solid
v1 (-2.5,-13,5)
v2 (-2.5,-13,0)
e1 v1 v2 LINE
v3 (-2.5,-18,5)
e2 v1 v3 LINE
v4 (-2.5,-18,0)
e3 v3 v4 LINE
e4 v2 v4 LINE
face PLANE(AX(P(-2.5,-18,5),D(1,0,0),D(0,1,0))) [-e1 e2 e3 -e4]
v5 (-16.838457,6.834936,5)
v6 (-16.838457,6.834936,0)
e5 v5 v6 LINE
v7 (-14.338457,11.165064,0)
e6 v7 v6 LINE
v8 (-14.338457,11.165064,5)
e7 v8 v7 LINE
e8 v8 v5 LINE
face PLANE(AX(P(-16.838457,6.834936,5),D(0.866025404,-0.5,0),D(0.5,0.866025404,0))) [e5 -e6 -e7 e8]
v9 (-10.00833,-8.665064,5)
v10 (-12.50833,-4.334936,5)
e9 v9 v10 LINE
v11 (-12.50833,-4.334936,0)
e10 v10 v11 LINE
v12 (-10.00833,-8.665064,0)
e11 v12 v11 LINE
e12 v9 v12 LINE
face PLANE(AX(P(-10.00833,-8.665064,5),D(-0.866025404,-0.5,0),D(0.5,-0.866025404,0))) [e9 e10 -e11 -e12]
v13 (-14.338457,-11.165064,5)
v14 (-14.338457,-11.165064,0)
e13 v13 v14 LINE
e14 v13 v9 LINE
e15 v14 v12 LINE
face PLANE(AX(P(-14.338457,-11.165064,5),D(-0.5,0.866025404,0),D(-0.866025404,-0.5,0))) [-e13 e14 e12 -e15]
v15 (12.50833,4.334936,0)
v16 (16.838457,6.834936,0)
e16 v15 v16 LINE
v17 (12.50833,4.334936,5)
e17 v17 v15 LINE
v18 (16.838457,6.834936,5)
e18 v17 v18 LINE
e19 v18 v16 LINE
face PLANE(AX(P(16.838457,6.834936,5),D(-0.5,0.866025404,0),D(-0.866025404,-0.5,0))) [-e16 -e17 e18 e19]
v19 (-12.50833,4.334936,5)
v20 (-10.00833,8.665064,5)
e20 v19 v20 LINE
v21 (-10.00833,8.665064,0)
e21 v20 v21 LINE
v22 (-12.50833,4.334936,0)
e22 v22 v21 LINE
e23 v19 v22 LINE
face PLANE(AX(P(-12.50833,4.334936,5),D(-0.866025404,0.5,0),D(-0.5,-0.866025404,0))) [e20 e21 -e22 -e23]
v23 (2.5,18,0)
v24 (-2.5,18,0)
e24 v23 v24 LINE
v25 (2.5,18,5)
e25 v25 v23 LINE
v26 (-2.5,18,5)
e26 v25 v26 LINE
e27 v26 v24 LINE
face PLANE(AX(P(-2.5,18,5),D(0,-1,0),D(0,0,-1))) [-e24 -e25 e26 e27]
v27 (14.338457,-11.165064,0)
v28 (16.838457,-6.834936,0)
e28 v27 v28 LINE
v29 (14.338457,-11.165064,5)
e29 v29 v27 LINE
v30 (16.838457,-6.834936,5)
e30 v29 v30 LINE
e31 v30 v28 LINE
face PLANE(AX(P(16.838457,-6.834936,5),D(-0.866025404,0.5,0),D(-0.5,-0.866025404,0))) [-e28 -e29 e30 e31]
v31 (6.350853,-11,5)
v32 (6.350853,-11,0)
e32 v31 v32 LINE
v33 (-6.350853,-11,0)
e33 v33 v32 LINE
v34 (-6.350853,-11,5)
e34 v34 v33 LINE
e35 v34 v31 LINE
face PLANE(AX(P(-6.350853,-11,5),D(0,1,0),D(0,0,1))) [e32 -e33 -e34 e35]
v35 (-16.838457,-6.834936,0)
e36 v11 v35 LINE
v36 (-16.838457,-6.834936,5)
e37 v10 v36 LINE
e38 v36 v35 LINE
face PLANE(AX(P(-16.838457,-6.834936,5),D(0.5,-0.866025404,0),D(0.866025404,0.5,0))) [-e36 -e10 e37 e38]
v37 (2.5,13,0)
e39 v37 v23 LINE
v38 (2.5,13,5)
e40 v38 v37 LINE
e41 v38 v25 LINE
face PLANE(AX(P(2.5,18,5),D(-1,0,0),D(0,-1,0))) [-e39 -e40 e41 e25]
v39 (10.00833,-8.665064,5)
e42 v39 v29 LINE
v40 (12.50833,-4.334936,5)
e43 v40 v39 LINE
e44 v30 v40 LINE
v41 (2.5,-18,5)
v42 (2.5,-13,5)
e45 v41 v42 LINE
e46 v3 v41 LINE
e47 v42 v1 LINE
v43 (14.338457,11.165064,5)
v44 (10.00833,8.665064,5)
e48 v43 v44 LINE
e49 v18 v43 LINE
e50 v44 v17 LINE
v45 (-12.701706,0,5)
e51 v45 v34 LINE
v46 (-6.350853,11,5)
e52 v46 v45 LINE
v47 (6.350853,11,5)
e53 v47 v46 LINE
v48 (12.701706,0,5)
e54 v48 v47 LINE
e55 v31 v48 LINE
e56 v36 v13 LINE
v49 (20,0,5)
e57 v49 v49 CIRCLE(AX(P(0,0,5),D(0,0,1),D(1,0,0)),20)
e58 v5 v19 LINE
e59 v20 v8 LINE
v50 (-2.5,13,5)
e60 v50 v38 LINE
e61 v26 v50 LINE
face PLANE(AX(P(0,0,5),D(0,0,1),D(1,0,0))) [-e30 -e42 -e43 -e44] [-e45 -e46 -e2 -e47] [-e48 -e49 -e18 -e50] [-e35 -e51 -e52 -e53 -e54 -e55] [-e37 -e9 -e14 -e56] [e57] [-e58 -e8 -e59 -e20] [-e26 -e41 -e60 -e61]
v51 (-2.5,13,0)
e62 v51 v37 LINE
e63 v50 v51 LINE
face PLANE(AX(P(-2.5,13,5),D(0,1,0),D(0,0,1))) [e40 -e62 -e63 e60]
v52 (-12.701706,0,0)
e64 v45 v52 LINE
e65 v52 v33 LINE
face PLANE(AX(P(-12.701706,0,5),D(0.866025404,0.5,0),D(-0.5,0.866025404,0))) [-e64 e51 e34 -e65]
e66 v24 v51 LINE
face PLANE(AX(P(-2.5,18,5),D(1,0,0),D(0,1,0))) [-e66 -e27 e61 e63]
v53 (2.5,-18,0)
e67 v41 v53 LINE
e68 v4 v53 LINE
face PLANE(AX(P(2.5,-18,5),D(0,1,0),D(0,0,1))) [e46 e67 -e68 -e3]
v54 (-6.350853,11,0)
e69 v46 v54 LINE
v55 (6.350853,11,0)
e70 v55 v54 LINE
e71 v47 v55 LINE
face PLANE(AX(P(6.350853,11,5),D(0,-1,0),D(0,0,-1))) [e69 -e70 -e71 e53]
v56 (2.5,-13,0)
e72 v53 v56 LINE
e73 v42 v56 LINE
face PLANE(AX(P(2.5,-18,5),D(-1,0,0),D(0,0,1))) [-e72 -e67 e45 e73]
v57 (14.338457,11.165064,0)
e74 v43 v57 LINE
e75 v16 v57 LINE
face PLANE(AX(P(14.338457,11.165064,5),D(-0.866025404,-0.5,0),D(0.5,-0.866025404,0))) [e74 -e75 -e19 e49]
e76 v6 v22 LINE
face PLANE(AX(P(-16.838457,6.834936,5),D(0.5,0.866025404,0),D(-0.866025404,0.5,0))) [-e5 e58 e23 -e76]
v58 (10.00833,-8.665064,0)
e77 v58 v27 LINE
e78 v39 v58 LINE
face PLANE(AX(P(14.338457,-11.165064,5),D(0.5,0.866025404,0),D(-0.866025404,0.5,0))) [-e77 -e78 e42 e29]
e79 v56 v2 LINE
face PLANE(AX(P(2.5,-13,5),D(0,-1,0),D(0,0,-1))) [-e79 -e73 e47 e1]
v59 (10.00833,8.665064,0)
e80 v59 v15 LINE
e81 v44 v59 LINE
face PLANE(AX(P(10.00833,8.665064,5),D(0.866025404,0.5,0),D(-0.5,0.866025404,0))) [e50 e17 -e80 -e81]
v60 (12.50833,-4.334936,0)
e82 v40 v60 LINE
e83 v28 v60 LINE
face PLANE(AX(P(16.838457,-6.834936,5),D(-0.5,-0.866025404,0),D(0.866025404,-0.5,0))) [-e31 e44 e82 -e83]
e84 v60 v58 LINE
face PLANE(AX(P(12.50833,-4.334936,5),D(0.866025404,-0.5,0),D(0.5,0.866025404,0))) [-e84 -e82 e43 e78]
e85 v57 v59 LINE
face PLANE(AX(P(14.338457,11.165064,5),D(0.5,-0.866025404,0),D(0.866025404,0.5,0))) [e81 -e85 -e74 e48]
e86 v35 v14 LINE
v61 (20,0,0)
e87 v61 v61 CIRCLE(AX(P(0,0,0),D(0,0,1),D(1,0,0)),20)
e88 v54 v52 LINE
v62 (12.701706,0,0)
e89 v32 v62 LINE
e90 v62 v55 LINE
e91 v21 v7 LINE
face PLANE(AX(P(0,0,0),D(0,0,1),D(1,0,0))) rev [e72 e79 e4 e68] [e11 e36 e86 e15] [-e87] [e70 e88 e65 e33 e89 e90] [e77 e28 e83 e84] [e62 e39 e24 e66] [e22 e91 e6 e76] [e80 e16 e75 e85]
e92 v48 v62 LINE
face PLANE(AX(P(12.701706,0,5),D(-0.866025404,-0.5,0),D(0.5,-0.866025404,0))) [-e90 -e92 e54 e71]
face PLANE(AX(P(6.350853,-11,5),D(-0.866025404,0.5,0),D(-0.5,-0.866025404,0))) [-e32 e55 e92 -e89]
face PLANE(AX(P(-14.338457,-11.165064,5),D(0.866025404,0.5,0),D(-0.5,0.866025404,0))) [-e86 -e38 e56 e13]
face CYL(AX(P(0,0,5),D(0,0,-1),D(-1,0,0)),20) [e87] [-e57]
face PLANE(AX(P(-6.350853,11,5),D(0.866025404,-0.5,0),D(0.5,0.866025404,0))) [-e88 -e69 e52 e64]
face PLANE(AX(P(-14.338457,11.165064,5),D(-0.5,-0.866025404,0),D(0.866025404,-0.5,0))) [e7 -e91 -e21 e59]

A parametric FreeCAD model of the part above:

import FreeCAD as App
import Part
import Sketcher
Q = App.Units.Quantity


def add_polygon(sketch, points):
    """Adds a closed chain of lines whose ends are joined by coincident constraints."""
    first, n = sketch.GeometryCount, len(points)
    for a, b in zip(points, points[1:] + points[:1]):
        sketch.addGeometry(Part.LineSegment(App.Vector(*a, 0), App.Vector(*b, 0)), False)
    for i in range(n):
        sketch.addConstraint(Sketcher.Constraint("Coincident", first + i, 2, first + (i + 1) % n, 1))

doc = App.newDocument("Part")
body = doc.addObject("PartDesign::Body", "Body")

# Sketch on XY plane
sketch1 = doc.addObject("Sketcher::SketchObject", "Sketch")
body.addObject(sketch1)
sketch1.AttachmentSupport = (doc.XY_Plane, [""])
sketch1.MapMode = "FlatFace"
sketch1.addGeometry(Part.Circle(App.Vector(0, 0, 0), App.Vector(0, 0, 1), 20), False)  # 0
add_polygon(sketch1, [(-14.3, -11.2), (-16.8, -6.8), (-12.5, -4.3), (-10, -8.7)])  # lines 1-4
add_polygon(sketch1, [(2.5, -18), (-2.5, -18), (-2.5, -13), (2.5, -13)])  # lines 5-8
add_polygon(sketch1, [(16.8, -6.8), (14.3, -11.2), (10, -8.7), (12.5, -4.3)])  # lines 9-12
add_polygon(sketch1, [(-16.8, 6.8), (-14.3, 11.2), (-10, 8.7), (-12.5, 4.3)])  # lines 13-16
add_polygon(sketch1, [(6.4, 11), (12.7, 0), (6.4, -11), (-6.4, -11), (-12.7, 0), (-6.4, 11)])  # lines 17-22
add_polygon(sketch1, [(14.3, 11.2), (16.8, 6.8), (12.5, 4.3), (10, 8.7)])  # lines 23-26
add_polygon(sketch1, [(2.5, 13), (-2.5, 13), (-2.5, 18), (2.5, 18)])  # lines 27-30
sketch1.addConstraint(Sketcher.Constraint("Horizontal", 5))
sketch1.addConstraint(Sketcher.Constraint("Vertical", 6))
sketch1.addConstraint(Sketcher.Constraint("Horizontal", 7))
sketch1.addConstraint(Sketcher.Constraint("Vertical", 8))
sketch1.addConstraint(Sketcher.Constraint("Horizontal", 19))
sketch1.addConstraint(Sketcher.Constraint("Horizontal", 22))
sketch1.addConstraint(Sketcher.Constraint("Horizontal", 27))
sketch1.addConstraint(Sketcher.Constraint("Vertical", 28))
sketch1.addConstraint(Sketcher.Constraint("Horizontal", 29))
sketch1.addConstraint(Sketcher.Constraint("Vertical", 30))
sketch1.addConstraint(Sketcher.Constraint("Coincident", 0, 3, -1, 1))
sketch1.addConstraint(Sketcher.Constraint("Symmetric", 9, 2, 13, 2, -1, 1))
sketch1.addConstraint(Sketcher.Constraint("Symmetric", 10, 2, 14, 2, -1, 1))
sketch1.addConstraint(Sketcher.Constraint("Symmetric", 11, 2, 15, 2, -1, 1))
sketch1.addConstraint(Sketcher.Constraint("Symmetric", 12, 2, 16, 2, -1, 1))
sketch1.addConstraint(Sketcher.Constraint("Symmetric", 17, 2, 20, 2, -1, 1))
sketch1.addConstraint(Sketcher.Constraint("Symmetric", 18, 2, 21, 2, -1, 1))
sketch1.addConstraint(Sketcher.Constraint("Symmetric", 1, 2, 23, 2, -1, 1))
sketch1.addConstraint(Sketcher.Constraint("Symmetric", 2, 2, 24, 2, -1, 1))
sketch1.addConstraint(Sketcher.Constraint("Symmetric", 3, 2, 25, 2, -1, 1))
sketch1.addConstraint(Sketcher.Constraint("Symmetric", 4, 2, 26, 2, -1, 1))
sketch1.addConstraint(Sketcher.Constraint("Symmetric", 7, 2, 27, 2, -1, 1))
sketch1.addConstraint(Sketcher.Constraint("Symmetric", 5, 2, 29, 2, -1, 1))
sketch1.addConstraint(Sketcher.Constraint("Symmetric", 4, 2, 9, 2, -2))
sketch1.addConstraint(Sketcher.Constraint("Symmetric", 3, 2, 10, 2, -2))
sketch1.addConstraint(Sketcher.Constraint("Symmetric", 2, 2, 11, 2, -2))
sketch1.addConstraint(Sketcher.Constraint("Symmetric", 1, 2, 12, 2, -2))
sketch1.addConstraint(Sketcher.Constraint("PointOnObject", 17, 2, -1))
sketch1.addConstraint(Sketcher.Constraint("Perpendicular", 1, 2))
sketch1.addConstraint(Sketcher.Constraint("Perpendicular", 2, 3))
sketch1.addConstraint(Sketcher.Constraint("Perpendicular", 3, 4))
sketch1.addConstraint(Sketcher.Constraint("Perpendicular", 4, 17))
sketch1.addConstraint(Sketcher.Constraint("Perpendicular", 16, 18))
sketch1.addConstraint(Sketcher.Constraint("Parallel", 17, 20))
sketch1.addConstraint(Sketcher.Constraint("Vertical", 6, 2, 27, 2))
sketch1.addConstraint(Sketcher.Constraint("Equal", 29, 6))
sketch1.addConstraint(Sketcher.Constraint("Equal", 1, 2))
sketch1.addConstraint(Sketcher.Constraint("Diameter", 0, Q("40 mm")))
sketch1.addConstraint(Sketcher.Constraint("DistanceX", 5, 2, 5, 1, Q("5 mm")))
sketch1.addConstraint(Sketcher.Constraint("Angle", 1, Q("120 deg")))
sketch1.addConstraint(Sketcher.Constraint("Distance", 1, Q("5 mm")))
sketch1.addConstraint(Sketcher.Constraint("DistanceY", 5, 2, -1, 1, Q("18 mm")))
sketch1.addConstraint(Sketcher.Constraint("DistanceY", 18, 2, -1, 1, Q("11 mm")))
sketch1.addConstraint(Sketcher.Constraint("DistanceY", 1, 2, 13, 2, Q("18 mm")))
sketch1.addConstraint(Sketcher.Constraint("DistanceX", 19, 2, 19, 1, Q("12.701706 mm")))
sketch1.addConstraint(Sketcher.Constraint("DistanceX", 2, 2, -1, 1, Q("12.50833 mm")))
pad1 = doc.addObject("PartDesign::Pad", "Pad")
body.addObject(pad1)
pad1.Profile = sketch1
pad1.Length = 5

doc.recompute()
